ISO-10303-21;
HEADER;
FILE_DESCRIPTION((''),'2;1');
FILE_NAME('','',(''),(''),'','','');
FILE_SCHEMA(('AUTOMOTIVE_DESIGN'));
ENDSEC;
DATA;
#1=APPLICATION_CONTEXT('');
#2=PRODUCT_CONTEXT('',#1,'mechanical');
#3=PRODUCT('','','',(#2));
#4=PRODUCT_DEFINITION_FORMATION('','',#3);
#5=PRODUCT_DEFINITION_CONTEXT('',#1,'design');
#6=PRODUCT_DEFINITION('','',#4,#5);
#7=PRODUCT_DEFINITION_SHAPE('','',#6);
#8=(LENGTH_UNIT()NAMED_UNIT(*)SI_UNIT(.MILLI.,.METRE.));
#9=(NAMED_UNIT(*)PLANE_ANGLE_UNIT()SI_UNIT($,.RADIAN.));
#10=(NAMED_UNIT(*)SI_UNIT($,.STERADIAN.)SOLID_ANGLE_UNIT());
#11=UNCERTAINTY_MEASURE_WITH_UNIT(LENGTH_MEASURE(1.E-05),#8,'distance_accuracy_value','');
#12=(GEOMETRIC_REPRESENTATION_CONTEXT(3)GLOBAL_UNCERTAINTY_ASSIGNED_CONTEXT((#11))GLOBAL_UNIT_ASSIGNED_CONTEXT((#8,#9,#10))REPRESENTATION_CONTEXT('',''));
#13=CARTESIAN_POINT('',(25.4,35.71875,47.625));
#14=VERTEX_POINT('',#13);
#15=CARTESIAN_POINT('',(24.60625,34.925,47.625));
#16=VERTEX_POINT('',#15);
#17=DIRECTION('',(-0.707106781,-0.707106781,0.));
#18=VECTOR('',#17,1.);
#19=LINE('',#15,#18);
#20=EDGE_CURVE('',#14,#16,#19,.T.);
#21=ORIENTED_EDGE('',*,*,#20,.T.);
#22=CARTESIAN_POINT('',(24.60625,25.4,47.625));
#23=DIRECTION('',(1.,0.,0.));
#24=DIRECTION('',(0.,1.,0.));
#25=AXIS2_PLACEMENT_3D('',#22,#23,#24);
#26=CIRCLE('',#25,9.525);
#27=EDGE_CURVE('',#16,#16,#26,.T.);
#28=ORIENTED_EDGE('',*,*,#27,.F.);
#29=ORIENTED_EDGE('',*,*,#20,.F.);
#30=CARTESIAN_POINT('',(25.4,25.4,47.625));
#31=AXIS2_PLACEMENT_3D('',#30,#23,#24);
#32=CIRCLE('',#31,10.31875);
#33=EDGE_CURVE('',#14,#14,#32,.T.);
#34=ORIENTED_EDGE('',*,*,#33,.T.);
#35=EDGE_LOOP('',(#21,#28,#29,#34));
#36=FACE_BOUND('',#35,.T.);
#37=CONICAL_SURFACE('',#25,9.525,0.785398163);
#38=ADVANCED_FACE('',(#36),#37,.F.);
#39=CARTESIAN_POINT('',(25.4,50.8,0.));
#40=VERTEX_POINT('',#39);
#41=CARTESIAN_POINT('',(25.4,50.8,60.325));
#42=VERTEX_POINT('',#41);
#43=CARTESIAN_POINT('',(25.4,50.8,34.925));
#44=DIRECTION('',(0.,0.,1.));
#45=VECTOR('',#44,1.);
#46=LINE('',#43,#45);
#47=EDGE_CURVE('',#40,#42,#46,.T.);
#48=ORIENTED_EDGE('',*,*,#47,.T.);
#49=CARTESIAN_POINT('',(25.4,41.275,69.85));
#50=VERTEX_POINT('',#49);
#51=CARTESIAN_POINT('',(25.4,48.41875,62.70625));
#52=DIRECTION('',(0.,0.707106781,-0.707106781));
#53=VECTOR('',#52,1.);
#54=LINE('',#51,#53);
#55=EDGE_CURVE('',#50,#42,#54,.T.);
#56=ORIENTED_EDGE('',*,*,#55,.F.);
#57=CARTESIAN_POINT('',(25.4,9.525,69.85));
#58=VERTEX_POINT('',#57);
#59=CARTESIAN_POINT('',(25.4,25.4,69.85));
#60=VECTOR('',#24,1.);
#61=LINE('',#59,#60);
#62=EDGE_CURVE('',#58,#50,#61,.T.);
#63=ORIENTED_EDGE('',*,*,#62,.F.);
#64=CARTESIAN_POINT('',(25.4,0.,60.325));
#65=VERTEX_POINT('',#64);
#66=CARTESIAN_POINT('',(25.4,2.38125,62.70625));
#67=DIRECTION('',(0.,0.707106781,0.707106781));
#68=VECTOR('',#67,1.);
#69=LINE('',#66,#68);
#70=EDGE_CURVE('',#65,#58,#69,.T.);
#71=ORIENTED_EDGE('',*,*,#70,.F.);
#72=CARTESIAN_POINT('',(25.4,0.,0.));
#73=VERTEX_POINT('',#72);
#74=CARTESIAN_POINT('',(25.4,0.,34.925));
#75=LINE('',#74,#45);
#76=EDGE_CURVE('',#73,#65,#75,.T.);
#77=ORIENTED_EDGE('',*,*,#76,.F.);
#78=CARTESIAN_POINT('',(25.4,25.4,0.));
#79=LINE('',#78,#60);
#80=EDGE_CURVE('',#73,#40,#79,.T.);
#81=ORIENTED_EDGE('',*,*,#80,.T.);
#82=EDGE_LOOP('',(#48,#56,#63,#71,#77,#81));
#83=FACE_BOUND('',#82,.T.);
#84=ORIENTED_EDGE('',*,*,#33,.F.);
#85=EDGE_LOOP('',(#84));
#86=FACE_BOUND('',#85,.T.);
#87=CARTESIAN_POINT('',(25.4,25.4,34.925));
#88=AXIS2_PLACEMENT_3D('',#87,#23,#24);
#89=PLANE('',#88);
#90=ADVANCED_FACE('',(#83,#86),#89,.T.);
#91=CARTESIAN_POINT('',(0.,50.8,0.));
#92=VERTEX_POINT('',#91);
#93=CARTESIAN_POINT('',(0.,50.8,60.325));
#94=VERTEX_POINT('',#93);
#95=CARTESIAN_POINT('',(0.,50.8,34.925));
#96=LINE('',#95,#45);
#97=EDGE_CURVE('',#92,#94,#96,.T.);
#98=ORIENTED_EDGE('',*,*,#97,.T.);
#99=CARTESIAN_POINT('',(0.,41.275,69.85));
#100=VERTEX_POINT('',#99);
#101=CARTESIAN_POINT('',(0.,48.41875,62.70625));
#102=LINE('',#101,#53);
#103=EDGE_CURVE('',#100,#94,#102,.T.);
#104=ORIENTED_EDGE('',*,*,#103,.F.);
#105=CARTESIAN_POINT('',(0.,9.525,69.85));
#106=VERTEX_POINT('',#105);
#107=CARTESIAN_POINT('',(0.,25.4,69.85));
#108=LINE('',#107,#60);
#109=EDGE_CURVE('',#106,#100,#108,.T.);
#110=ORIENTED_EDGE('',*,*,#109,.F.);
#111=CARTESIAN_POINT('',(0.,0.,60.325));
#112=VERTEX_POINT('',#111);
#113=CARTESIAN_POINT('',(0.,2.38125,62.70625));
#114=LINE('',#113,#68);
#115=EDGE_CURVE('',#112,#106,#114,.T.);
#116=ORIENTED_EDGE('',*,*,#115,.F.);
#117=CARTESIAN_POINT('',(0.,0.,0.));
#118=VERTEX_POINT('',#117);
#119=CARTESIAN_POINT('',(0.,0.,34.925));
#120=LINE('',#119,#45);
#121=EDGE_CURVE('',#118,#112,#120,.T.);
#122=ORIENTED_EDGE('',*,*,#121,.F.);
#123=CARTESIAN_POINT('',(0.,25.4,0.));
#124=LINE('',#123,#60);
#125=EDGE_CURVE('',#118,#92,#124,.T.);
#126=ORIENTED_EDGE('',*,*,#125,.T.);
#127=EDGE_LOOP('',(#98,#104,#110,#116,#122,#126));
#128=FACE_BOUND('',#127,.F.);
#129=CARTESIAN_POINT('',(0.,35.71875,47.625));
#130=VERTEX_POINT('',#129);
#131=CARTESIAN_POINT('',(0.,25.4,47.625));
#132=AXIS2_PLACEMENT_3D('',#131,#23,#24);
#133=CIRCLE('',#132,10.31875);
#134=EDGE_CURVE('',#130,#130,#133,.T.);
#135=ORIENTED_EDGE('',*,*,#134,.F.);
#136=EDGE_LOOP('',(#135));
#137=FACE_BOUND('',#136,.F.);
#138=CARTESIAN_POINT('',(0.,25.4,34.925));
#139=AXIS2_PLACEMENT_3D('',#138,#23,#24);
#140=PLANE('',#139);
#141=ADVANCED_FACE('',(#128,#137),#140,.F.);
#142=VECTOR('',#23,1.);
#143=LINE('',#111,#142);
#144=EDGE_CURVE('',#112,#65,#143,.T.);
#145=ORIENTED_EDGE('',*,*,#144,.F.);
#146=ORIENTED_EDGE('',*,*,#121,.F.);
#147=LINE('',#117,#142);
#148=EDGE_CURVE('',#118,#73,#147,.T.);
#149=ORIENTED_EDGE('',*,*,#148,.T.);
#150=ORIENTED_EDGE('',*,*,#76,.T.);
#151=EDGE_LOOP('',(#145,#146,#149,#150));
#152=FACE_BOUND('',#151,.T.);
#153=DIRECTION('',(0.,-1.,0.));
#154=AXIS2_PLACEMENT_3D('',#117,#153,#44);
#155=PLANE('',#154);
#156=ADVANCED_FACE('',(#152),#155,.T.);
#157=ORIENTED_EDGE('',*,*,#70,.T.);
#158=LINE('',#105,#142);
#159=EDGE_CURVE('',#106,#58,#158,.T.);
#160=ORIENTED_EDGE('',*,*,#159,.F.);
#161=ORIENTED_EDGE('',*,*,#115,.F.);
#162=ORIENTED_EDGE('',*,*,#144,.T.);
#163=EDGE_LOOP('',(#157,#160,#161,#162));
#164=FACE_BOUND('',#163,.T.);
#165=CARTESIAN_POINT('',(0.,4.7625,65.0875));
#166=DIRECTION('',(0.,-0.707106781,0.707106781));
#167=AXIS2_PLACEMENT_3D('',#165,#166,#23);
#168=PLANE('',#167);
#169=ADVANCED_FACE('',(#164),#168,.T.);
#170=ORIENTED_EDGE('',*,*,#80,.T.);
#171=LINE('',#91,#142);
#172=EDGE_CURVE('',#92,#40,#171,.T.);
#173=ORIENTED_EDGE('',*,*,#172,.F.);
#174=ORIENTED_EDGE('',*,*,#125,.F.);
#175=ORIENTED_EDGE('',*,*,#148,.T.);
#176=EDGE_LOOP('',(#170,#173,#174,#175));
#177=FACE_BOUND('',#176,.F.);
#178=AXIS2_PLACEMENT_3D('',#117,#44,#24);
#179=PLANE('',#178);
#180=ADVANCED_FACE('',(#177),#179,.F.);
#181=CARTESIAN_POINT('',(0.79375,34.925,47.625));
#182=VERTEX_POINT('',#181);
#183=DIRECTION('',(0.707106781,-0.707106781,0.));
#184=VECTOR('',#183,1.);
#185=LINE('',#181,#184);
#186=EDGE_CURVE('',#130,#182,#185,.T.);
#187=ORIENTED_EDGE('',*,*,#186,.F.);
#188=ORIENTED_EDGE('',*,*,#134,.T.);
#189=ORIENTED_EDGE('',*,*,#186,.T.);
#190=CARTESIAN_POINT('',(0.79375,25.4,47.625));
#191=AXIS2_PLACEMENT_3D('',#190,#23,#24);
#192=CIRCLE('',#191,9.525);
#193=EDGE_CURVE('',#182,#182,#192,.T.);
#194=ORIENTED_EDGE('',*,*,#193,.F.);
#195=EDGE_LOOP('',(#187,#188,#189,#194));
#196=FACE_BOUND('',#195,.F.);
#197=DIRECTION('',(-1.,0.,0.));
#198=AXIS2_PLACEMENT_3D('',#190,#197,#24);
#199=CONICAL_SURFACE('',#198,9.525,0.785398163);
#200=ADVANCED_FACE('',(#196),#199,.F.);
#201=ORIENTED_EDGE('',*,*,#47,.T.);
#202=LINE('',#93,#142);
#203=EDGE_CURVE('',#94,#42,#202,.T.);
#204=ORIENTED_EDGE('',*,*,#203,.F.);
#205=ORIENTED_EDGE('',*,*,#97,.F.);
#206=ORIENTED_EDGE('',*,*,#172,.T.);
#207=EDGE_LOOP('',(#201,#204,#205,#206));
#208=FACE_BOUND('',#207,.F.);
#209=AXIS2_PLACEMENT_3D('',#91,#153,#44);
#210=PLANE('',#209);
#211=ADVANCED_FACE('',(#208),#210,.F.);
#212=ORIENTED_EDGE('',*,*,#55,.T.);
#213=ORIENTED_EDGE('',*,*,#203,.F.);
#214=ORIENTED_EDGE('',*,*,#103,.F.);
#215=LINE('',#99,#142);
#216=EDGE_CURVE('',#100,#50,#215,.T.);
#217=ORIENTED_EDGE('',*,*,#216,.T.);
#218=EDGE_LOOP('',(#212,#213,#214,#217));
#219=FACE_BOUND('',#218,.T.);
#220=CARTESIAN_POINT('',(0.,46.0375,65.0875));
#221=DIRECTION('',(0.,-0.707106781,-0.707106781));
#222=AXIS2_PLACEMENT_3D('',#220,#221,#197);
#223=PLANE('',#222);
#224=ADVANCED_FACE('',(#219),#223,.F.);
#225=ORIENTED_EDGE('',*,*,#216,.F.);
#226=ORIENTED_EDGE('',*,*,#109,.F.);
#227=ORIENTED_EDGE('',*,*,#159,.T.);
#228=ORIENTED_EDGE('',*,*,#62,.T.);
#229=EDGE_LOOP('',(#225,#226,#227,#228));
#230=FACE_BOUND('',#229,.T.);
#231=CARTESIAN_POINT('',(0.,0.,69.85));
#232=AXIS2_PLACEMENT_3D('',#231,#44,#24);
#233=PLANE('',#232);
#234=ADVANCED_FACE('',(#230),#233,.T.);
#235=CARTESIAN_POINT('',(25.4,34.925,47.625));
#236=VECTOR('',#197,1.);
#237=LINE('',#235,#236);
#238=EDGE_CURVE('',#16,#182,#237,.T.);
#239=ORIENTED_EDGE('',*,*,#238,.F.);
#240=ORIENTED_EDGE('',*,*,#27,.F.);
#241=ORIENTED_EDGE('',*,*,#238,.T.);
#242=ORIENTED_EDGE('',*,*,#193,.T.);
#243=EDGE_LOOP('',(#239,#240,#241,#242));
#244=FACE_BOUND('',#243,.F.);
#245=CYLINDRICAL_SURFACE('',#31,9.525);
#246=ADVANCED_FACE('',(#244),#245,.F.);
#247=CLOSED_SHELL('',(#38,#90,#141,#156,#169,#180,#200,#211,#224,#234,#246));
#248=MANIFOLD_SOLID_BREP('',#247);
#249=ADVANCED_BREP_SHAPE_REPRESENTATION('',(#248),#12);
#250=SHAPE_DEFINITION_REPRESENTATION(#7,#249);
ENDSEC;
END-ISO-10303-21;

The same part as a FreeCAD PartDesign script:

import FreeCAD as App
import Part
import Sketcher
Q = App.Units.Quantity


def edges_at(feature, points):
    """Names of the edges that pass closest to the given points."""
    edges = feature.Shape.Edges
    near = lambda p: min(range(len(edges)), key=lambda i: edges[i].distToShape(Part.Vertex(*p))[0])
    return sorted({f"Edge{near(p) + 1}" for p in points})


def add_polygon(sketch, points):
    """Adds a closed chain of lines whose ends are joined by coincident constraints."""
    first, n = sketch.GeometryCount, len(points)
    for a, b in zip(points, points[1:] + points[:1]):
        sketch.addGeometry(Part.LineSegment(App.Vector(*a, 0), App.Vector(*b, 0)), False)
    for i in range(n):
        sketch.addConstraint(Sketcher.Constraint("Coincident", first + i, 2, first + (i + 1) % n, 1))

doc = App.newDocument("Part")
params = doc.addObject("Spreadsheet::Sheet", "Params")
for row, (alias, value) in enumerate([
    ("sketch1_width", "2 in"),
    ("sketch1_height", "2.75 in"),
    ("pad1_length", "1 in"),
    ("sketch2_diameter", "0.75 in"),
    ("chamfer_size", "0.375 in"),
    ("chamfer2_size", "0.03125 in"),
], start=1):
    params.set(f"A{row}", alias)
    params.set(f"B{row}", "=" + value)
    params.setAlias(f"B{row}", alias)

body = doc.addObject("PartDesign::Body", "Body")

sketch1 = body.newObject("Sketcher::SketchObject", "Sketch")
sketch1.AttachmentSupport = (doc.getObject("YZ_Plane"), [""])
sketch1.MapMode = "FlatFace"
add_polygon(sketch1, [(0, 70), (0, 0), (51, 0), (51, 70)])
sketch1.addConstraint([
    Sketcher.Constraint("Vertical", 0),
    Sketcher.Constraint("Horizontal", 1),
    Sketcher.Constraint("Vertical", 2),
    Sketcher.Constraint("Horizontal", 3),
    Sketcher.Constraint("Coincident", 0, 2, -1, 1),
    Sketcher.Constraint("DistanceX", 1, 1, 1, 2, Q("2 in")),
    Sketcher.Constraint("DistanceY", 0, 2, 0, 1, Q("2.75 in")),
])
sketch1.setExpression("Constraints[9]", "Params.sketch1_width")
sketch1.setExpression("Constraints[10]", "Params.sketch1_height")
pad1 = body.newObject("PartDesign::Pad", "Pad")
pad1.Profile = sketch1
pad1.setExpression("Length", "Params.pad1_length")

sketch2 = body.newObject("Sketcher::SketchObject", "Sketch001")
sketch2.AttachmentSupport = (doc.getObject("YZ_Plane"), [""])
sketch2.MapMode = "FlatFace"
sketch2.AttachmentOffset = App.Placement(App.Vector(0, 0, 1 * 25.4), App.Rotation())
sketch2.addGeometry(Part.Circle(App.Vector(25, 48, 0), App.Vector(0, 0, 1), 10), False)
sketch2.addConstraint([
    Sketcher.Constraint("Diameter", 0, Q("0.75 in")),
    Sketcher.Constraint("DistanceX", -1, 1, 0, 3, Q("1 in")),
    Sketcher.Constraint("DistanceY", -1, 1, 0, 3, Q("1.875 in")),
])
sketch2.setExpression("Constraints[0]", "Params.sketch2_diameter")
pocket1 = body.newObject("PartDesign::Pocket", "Pocket")
pocket1.Profile = sketch2
pocket1.Type = "ThroughAll"
doc.recompute()

chamfer = body.newObject("PartDesign::Chamfer", "Chamfer")
chamfer.Base = (pocket1, edges_at(pocket1, [(12.7, 50.8, 69.85), (12.7, 0, 69.85)]))
chamfer.setExpression("Size", "Params.chamfer_size")
doc.recompute()

chamfer2 = body.newObject("PartDesign::Chamfer", "Chamfer001")
chamfer2.Base = (chamfer, edges_at(chamfer, [(0, 15.875, 47.625), (25.4, 15.875, 47.625)]))
chamfer2.setExpression("Size", "Params.chamfer2_size")

doc.recompute()
